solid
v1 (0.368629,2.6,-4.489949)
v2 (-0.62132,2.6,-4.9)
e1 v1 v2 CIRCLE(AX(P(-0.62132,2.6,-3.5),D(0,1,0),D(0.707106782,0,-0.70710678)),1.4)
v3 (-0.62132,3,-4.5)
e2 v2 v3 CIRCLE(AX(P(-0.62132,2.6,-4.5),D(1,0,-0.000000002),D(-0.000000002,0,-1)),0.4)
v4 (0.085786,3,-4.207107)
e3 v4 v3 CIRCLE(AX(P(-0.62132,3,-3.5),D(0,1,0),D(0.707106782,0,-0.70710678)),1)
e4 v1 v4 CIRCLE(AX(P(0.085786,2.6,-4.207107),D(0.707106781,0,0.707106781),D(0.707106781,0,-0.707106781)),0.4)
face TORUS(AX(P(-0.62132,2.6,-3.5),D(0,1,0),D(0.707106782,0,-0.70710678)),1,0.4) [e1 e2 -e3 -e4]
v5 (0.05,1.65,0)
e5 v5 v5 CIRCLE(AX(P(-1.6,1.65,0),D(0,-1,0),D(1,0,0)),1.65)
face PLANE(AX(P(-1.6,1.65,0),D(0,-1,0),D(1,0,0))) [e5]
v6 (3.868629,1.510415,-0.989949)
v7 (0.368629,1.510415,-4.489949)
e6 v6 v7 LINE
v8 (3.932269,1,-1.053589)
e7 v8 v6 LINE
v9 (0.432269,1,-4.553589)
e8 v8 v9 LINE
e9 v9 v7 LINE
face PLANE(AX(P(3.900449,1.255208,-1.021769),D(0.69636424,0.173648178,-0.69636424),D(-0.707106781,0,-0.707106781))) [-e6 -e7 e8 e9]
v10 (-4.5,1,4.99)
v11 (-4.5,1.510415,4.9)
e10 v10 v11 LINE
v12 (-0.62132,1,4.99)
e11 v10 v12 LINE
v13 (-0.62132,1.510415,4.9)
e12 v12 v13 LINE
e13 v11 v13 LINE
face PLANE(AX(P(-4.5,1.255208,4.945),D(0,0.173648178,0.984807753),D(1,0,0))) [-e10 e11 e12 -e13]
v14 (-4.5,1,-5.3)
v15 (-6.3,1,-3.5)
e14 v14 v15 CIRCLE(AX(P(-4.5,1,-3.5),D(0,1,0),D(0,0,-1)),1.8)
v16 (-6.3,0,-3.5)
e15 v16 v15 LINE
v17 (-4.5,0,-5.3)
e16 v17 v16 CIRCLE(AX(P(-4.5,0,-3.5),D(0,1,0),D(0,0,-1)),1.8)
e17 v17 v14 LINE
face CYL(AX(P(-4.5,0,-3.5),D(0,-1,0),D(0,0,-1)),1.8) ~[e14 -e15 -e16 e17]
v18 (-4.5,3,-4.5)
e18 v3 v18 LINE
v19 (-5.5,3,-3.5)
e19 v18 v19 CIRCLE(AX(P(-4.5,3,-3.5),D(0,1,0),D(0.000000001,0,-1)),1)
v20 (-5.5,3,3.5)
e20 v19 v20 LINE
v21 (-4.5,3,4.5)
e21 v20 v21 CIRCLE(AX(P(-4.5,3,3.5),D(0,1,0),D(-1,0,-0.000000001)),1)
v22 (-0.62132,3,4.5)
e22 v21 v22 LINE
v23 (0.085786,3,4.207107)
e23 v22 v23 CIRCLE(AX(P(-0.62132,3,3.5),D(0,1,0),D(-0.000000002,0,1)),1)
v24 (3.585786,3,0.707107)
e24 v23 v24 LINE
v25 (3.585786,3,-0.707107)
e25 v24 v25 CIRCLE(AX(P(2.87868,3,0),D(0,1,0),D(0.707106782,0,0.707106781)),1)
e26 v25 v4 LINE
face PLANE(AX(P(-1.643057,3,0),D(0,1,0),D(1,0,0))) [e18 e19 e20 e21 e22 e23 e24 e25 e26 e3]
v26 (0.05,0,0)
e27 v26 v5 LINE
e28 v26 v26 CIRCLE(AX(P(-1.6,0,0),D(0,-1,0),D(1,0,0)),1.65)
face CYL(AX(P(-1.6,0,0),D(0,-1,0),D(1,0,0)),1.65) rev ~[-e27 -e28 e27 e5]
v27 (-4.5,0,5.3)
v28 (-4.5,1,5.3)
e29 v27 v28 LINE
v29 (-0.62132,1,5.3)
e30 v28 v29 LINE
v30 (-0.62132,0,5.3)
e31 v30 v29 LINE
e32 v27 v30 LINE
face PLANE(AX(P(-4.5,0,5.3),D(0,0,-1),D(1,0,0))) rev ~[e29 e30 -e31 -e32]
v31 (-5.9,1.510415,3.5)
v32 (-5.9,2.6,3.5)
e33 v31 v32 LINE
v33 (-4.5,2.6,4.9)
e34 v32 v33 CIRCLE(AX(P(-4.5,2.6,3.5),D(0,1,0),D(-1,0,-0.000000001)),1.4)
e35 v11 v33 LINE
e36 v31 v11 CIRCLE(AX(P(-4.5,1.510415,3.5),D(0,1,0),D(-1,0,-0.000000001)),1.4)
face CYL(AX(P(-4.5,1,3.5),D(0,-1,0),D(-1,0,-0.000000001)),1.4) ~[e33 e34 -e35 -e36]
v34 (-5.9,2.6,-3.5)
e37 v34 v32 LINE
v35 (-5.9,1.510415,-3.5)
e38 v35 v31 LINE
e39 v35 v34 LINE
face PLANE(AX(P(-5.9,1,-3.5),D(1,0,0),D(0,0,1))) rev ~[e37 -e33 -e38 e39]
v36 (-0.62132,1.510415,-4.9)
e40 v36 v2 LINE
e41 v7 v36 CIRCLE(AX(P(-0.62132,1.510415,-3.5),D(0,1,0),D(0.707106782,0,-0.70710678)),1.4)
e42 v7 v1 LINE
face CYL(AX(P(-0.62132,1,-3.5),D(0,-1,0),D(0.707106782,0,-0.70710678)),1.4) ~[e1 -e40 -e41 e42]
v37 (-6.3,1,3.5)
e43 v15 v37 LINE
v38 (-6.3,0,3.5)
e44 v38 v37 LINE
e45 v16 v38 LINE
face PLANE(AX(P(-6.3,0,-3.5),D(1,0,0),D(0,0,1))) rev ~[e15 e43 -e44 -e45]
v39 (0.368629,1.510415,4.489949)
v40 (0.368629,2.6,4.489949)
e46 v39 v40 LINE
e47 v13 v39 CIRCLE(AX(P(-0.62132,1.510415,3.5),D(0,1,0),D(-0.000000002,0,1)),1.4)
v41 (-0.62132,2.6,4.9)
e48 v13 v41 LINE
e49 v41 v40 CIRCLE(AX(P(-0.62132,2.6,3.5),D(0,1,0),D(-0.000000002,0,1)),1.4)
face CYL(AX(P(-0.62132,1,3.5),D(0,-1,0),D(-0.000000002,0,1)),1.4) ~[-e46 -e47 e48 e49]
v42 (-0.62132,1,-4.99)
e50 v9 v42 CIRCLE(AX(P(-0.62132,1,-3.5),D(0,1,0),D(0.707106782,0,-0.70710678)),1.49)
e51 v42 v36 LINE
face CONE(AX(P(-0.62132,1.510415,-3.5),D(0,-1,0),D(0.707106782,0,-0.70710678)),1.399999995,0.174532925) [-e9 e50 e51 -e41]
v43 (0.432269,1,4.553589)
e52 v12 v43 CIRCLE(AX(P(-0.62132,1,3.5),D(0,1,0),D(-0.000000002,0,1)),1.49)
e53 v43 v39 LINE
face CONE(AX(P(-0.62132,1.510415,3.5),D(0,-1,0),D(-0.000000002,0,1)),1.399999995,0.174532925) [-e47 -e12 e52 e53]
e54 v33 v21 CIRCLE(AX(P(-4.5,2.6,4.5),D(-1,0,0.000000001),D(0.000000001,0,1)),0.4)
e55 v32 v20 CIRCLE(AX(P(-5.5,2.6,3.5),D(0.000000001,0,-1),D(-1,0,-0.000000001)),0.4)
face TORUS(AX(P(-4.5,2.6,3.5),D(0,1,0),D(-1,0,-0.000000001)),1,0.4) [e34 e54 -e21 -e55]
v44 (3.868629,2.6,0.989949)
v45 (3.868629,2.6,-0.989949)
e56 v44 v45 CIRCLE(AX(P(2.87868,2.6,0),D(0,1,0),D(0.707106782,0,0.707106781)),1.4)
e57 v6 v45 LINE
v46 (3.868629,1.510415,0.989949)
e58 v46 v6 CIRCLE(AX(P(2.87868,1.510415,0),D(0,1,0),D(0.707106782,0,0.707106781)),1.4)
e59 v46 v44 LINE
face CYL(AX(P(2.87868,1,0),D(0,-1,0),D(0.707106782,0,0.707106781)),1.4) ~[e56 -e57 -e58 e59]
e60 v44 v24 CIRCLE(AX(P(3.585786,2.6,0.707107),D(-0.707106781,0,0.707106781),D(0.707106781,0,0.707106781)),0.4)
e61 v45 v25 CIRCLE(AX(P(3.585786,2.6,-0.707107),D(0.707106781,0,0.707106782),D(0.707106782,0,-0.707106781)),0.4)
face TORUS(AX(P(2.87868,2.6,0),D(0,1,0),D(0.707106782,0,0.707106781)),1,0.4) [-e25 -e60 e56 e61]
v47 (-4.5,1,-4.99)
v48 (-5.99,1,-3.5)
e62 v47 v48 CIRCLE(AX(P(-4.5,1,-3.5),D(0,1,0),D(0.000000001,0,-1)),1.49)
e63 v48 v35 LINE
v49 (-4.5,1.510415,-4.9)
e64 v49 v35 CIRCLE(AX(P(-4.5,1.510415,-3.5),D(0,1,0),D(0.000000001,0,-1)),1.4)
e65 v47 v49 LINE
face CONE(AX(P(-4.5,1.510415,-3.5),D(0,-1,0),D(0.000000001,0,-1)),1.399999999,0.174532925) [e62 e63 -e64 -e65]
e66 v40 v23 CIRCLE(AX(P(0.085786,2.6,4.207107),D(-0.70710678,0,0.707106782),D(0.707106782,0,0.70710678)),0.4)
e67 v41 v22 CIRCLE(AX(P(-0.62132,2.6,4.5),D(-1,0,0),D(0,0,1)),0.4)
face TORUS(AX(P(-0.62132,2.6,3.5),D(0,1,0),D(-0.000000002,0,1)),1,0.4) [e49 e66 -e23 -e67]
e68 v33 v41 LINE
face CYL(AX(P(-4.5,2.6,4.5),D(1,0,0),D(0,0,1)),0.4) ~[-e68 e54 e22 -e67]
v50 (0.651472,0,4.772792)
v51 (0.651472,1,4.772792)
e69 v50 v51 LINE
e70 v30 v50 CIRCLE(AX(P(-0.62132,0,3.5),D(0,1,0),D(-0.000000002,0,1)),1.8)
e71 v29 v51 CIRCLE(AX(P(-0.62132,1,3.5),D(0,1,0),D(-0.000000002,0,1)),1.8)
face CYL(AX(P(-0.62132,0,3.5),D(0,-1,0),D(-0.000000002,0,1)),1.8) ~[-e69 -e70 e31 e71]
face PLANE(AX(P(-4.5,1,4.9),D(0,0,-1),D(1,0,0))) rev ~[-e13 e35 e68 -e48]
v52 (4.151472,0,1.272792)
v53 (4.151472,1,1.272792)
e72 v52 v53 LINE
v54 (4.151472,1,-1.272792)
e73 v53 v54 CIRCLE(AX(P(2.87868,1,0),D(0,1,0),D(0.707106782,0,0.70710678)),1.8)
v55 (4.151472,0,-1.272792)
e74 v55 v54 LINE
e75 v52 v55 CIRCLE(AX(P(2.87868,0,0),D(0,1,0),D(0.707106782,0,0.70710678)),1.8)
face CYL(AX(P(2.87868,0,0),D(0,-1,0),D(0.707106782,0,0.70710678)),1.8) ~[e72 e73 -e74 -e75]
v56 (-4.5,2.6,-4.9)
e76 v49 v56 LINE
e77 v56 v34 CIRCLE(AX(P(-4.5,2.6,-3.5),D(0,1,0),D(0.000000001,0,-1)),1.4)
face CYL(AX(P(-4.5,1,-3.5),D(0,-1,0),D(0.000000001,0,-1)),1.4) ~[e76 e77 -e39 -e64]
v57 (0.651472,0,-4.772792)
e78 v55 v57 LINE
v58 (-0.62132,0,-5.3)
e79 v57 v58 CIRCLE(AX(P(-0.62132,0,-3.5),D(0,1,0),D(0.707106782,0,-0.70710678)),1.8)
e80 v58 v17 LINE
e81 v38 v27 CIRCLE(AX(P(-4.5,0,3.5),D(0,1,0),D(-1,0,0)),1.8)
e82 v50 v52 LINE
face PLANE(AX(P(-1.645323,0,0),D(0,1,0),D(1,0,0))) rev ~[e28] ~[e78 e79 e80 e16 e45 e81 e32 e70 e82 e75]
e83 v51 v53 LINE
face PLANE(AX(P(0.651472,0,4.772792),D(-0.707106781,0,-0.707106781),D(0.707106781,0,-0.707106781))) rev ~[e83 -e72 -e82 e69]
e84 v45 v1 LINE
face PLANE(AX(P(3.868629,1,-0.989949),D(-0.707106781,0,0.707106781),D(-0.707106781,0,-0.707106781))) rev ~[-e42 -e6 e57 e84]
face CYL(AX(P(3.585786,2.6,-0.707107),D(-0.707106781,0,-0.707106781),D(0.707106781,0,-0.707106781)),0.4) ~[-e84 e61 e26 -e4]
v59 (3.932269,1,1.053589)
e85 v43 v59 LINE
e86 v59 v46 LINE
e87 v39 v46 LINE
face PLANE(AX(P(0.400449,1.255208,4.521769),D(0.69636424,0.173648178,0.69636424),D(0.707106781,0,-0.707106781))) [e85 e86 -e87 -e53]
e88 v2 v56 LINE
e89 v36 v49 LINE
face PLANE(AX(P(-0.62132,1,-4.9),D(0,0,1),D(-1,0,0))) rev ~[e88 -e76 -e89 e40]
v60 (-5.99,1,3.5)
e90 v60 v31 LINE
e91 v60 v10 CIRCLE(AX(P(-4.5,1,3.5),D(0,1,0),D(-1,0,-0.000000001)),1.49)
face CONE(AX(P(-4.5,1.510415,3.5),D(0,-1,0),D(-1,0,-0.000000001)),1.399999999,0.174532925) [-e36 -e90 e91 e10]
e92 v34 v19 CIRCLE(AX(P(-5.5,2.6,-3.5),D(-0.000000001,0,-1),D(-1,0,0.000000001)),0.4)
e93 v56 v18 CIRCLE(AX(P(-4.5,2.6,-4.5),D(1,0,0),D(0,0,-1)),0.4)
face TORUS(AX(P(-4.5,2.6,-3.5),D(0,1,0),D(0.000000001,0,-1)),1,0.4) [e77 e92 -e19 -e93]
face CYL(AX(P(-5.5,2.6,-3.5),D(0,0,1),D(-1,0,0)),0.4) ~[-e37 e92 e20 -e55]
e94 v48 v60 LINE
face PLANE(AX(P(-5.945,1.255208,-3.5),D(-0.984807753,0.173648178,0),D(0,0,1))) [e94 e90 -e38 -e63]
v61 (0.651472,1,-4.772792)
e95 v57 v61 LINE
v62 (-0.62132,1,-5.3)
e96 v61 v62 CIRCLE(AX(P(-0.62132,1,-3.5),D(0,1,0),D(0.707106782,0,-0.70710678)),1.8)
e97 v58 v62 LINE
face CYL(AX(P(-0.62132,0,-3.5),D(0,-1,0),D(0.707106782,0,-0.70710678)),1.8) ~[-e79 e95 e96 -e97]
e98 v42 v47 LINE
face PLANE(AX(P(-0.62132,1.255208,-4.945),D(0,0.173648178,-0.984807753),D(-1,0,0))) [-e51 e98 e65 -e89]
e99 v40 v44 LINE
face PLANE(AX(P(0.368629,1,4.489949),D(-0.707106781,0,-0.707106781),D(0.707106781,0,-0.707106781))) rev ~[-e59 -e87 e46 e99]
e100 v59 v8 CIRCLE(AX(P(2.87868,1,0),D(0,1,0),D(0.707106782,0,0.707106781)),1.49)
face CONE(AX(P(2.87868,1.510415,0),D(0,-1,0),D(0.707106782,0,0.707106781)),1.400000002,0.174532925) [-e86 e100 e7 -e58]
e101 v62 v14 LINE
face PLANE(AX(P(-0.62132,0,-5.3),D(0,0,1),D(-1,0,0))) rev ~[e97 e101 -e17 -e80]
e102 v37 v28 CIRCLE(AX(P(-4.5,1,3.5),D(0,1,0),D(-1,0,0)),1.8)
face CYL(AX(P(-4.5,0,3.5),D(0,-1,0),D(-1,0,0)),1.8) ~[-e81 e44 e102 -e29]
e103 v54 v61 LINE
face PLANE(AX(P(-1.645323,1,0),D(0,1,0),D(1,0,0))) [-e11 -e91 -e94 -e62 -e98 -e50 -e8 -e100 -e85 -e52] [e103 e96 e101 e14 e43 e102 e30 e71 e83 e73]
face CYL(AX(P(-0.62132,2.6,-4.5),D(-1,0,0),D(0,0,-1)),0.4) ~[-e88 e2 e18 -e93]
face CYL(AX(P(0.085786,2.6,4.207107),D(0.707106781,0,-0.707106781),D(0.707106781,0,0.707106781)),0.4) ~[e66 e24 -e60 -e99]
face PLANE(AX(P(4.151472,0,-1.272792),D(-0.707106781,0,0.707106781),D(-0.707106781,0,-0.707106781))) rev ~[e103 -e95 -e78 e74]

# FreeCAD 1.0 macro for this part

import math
import FreeCAD as App
import Part
import Sketcher


def edges_at(feature, points):
    """Names of the edges that pass closest to the given points."""
    edges = feature.Shape.Edges
    near = lambda p: min(range(len(edges)), key=lambda i: edges[i].distToShape(Part.Vertex(*p))[0])
    return sorted({f"Edge{near(p) + 1}" for p in points})

doc = App.newDocument("Part")
body = doc.addObject("PartDesign::Body", "Body")

# Sketch on XZ plane
sketch1 = body.newObject("Sketcher::SketchObject", "Sketch")
sketch1.AttachmentSupport = (doc.getObject("XZ_Plane"), [""])
sketch1.MapMode = "FlatFace"
sketch1.addGeometry([
    Part.LineSegment(App.Vector(-4.5, 5.3, 0), App.Vector(-0.6, 5.3, 0)),  # 0
    Part.ArcOfCircle(Part.Circle(App.Vector(-0.6, 3.5, 0), App.Vector(0, 0, 1), 1.8), math.radians(45), math.radians(90)),  # 1
    Part.LineSegment(App.Vector(0.7, 4.8, 0), App.Vector(4.2, 1.3, 0)),  # 2
    Part.ArcOfCircle(Part.Circle(App.Vector(2.9, 0, 0), App.Vector(0, 0, 1), 1.8), math.radians(-45), math.radians(45)),  # 3
    Part.LineSegment(App.Vector(4.2, -1.3, 0), App.Vector(0.7, -4.8, 0)),  # 4
    Part.ArcOfCircle(Part.Circle(App.Vector(-0.6, -3.5, 0), App.Vector(0, 0, 1), 1.8), math.radians(-90), math.radians(-45)),  # 5
    Part.LineSegment(App.Vector(-0.6, -5.3, 0), App.Vector(-4.5, -5.3, 0)),  # 6
    Part.ArcOfCircle(Part.Circle(App.Vector(-4.5, -3.5, 0), App.Vector(0, 0, 1), 1.8), math.radians(180), math.radians(270)),  # 7
    Part.LineSegment(App.Vector(-6.3, -3.5, 0), App.Vector(-6.3, 3.5, 0)),  # 8
    Part.ArcOfCircle(Part.Circle(App.Vector(-4.5, 3.5, 0), App.Vector(0, 0, 1), 1.8), math.radians(90), math.radians(180)),  # 9
], False)
sketch1.addConstraint([
    Sketcher.Constraint("Tangent", 0, 2, 1, 2),
    Sketcher.Constraint("Tangent", 1, 1, 2, 1),
    Sketcher.Constraint("Tangent", 2, 2, 3, 2),
    Sketcher.Constraint("Tangent", 3, 1, 4, 1),
    Sketcher.Constraint("Tangent", 4, 2, 5, 2),
    Sketcher.Constraint("Tangent", 5, 1, 6, 1),
    Sketcher.Constraint("Tangent", 6, 2, 7, 2),
    Sketcher.Constraint("Tangent", 7, 1, 8, 1),
    Sketcher.Constraint("Tangent", 8, 2, 9, 2),
    Sketcher.Constraint("Tangent", 9, 1, 0, 1),
    Sketcher.Constraint("Horizontal", 0),
    Sketcher.Constraint("Horizontal", 6),
    Sketcher.Constraint("Vertical", 8),
    Sketcher.Constraint("Equal", 1, 3),
    Sketcher.Constraint("Equal", 3, 5),
    Sketcher.Constraint("Equal", 5, 7),
    Sketcher.Constraint("Equal", 7, 9),
    Sketcher.Constraint("Symmetric", 1, 3, 5, 3, -1),
    Sketcher.Constraint("PointOnObject", 3, 3, -1),
    Sketcher.Constraint("Perpendicular", 2, 4),
    Sketcher.Constraint("Radius", 1, 1.8),
    Sketcher.Constraint("DistanceY", 8, 1, 8, 2, 7.0),
    Sketcher.Constraint("DistanceX", 7, 3, -1, 1, 4.5),
    Sketcher.Constraint("DistanceX", 0, 1, 0, 2, 3.87868),
])
pad1 = body.newObject("PartDesign::Pad", "Pad")
pad1.Profile = sketch1
pad1.Length = 1
pad1.Reversed = True

# Sketch on XZ plane
sketch2 = body.newObject("Sketcher::SketchObject", "Sketch001")
sketch2.AttachmentSupport = (doc.getObject("XZ_Plane"), [""])
sketch2.MapMode = "FlatFace"
sketch2.AttachmentOffset = App.Placement(App.Vector(0, 0, -1), App.Rotation())
sketch2.addGeometry([
    Part.LineSegment(App.Vector(-4.5, 4.9, 0), App.Vector(-0.6, 4.9, 0)),  # 0
    Part.ArcOfCircle(Part.Circle(App.Vector(-0.6, 3.5, 0), App.Vector(0, 0, 1), 1.4), math.radians(45), math.radians(90)),  # 1
    Part.LineSegment(App.Vector(0.4, 4.5, 0), App.Vector(3.9, 1, 0)),  # 2
    Part.ArcOfCircle(Part.Circle(App.Vector(2.9, 0, 0), App.Vector(0, 0, 1), 1.4), math.radians(-45), math.radians(45)),  # 3
    Part.LineSegment(App.Vector(3.9, -1, 0), App.Vector(0.4, -4.5, 0)),  # 4
    Part.ArcOfCircle(Part.Circle(App.Vector(-0.6, -3.5, 0), App.Vector(0, 0, 1), 1.4), math.radians(-90), math.radians(-45)),  # 5
    Part.LineSegment(App.Vector(-0.6, -4.9, 0), App.Vector(-4.5, -4.9, 0)),  # 6
    Part.ArcOfCircle(Part.Circle(App.Vector(-4.5, -3.5, 0), App.Vector(0, 0, 1), 1.4), math.radians(180), math.radians(270)),  # 7
    Part.LineSegment(App.Vector(-5.9, -3.5, 0), App.Vector(-5.9, 3.5, 0)),  # 8
    Part.ArcOfCircle(Part.Circle(App.Vector(-4.5, 3.5, 0), App.Vector(0, 0, 1), 1.4), math.radians(90), math.radians(180)),  # 9
], False)
sketch2.addConstraint([
    Sketcher.Constraint("Tangent", 0, 2, 1, 2),
    Sketcher.Constraint("Tangent", 1, 1, 2, 1),
    Sketcher.Constraint("Tangent", 2, 2, 3, 2),
    Sketcher.Constraint("Tangent", 3, 1, 4, 1),
    Sketcher.Constraint("Tangent", 4, 2, 5, 2),
    Sketcher.Constraint("Tangent", 5, 1, 6, 1),
    Sketcher.Constraint("Tangent", 6, 2, 7, 2),
    Sketcher.Constraint("Tangent", 7, 1, 8, 1),
    Sketcher.Constraint("Tangent", 8, 2, 9, 2),
    Sketcher.Constraint("Tangent", 9, 1, 0, 1),
    Sketcher.Constraint("Horizontal", 0),
    Sketcher.Constraint("Horizontal", 6),
    Sketcher.Constraint("Vertical", 8),
    Sketcher.Constraint("Equal", 1, 3),
    Sketcher.Constraint("Equal", 3, 5),
    Sketcher.Constraint("Equal", 5, 7),
    Sketcher.Constraint("Equal", 7, 9),
    Sketcher.Constraint("Symmetric", 1, 3, 5, 3, -1),
    Sketcher.Constraint("PointOnObject", 3, 3, -1),
    Sketcher.Constraint("Perpendicular", 2, 4),
    Sketcher.Constraint("Radius", 1, 1.4),
    Sketcher.Constraint("DistanceY", 8, 1, 8, 2, 7.0),
    Sketcher.Constraint("DistanceX", 7, 3, -1, 1, 4.5),
    Sketcher.Constraint("DistanceX", 0, 1, 0, 2, 3.87868),
])
pad2 = body.newObject("PartDesign::Pad", "Pad001")
pad2.Profile = sketch2
pad2.Length = 2
pad2.Reversed = True
doc.recompute()

chamfer = body.newObject("PartDesign::Chamfer", "Chamfer")
chamfer.Base = (pad2, edges_at(pad2, [
    (-5.49, 1, 4.49),
    (-2.561, 1, 4.9),
    (-0.086, 1, 4.793),
    (2.119, 1, 2.74),
    (4.279, 1, 0),
    (2.119, 1, -2.74),
    (-0.086, 1, -4.793),
    (-2.561, 1, -4.9),
    (-5.49, 1, -4.49),
    (-5.9, 1, 0),
]))
chamfer.ChamferType = "Two distances"
chamfer.Size = 0.09
chamfer.Size2 = 0.510415
doc.recompute()

fillet = body.newObject("PartDesign::Fillet", "Fillet")
fillet.Base = (chamfer, edges_at(chamfer, [
    (-5.49, 3, 4.49),
    (-2.561, 3, 4.9),
    (-0.086, 3, 4.793),
    (2.119, 3, 2.74),
    (4.279, 3, 0),
    (2.119, 3, -2.74),
    (-0.086, 3, -4.793),
    (-2.561, 3, -4.9),
    (-5.49, 3, -4.49),
    (-5.9, 3, 0),
]))
fillet.Radius = 0.4

# Sketch on XZ plane
sketch3 = body.newObject("Sketcher::SketchObject", "Sketch002")
sketch3.AttachmentSupport = (doc.getObject("XZ_Plane"), [""])
sketch3.MapMode = "FlatFace"
sketch3.addGeometry(Part.Circle(App.Vector(-1.6, 0, 0), App.Vector(0, 0, 1), 1.6), False)
sketch3.addConstraint([
    Sketcher.Constraint("PointOnObject", 0, 3, -1),
    Sketcher.Constraint("Diameter", 0, 3.3),
    Sketcher.Constraint("DistanceX", 0, 3, -1, 1, 1.6),
])
pocket1 = body.newObject("PartDesign::Pocket", "Pocket")
pocket1.Profile = sketch3
pocket1.Length = 1.65

doc.recompute()
